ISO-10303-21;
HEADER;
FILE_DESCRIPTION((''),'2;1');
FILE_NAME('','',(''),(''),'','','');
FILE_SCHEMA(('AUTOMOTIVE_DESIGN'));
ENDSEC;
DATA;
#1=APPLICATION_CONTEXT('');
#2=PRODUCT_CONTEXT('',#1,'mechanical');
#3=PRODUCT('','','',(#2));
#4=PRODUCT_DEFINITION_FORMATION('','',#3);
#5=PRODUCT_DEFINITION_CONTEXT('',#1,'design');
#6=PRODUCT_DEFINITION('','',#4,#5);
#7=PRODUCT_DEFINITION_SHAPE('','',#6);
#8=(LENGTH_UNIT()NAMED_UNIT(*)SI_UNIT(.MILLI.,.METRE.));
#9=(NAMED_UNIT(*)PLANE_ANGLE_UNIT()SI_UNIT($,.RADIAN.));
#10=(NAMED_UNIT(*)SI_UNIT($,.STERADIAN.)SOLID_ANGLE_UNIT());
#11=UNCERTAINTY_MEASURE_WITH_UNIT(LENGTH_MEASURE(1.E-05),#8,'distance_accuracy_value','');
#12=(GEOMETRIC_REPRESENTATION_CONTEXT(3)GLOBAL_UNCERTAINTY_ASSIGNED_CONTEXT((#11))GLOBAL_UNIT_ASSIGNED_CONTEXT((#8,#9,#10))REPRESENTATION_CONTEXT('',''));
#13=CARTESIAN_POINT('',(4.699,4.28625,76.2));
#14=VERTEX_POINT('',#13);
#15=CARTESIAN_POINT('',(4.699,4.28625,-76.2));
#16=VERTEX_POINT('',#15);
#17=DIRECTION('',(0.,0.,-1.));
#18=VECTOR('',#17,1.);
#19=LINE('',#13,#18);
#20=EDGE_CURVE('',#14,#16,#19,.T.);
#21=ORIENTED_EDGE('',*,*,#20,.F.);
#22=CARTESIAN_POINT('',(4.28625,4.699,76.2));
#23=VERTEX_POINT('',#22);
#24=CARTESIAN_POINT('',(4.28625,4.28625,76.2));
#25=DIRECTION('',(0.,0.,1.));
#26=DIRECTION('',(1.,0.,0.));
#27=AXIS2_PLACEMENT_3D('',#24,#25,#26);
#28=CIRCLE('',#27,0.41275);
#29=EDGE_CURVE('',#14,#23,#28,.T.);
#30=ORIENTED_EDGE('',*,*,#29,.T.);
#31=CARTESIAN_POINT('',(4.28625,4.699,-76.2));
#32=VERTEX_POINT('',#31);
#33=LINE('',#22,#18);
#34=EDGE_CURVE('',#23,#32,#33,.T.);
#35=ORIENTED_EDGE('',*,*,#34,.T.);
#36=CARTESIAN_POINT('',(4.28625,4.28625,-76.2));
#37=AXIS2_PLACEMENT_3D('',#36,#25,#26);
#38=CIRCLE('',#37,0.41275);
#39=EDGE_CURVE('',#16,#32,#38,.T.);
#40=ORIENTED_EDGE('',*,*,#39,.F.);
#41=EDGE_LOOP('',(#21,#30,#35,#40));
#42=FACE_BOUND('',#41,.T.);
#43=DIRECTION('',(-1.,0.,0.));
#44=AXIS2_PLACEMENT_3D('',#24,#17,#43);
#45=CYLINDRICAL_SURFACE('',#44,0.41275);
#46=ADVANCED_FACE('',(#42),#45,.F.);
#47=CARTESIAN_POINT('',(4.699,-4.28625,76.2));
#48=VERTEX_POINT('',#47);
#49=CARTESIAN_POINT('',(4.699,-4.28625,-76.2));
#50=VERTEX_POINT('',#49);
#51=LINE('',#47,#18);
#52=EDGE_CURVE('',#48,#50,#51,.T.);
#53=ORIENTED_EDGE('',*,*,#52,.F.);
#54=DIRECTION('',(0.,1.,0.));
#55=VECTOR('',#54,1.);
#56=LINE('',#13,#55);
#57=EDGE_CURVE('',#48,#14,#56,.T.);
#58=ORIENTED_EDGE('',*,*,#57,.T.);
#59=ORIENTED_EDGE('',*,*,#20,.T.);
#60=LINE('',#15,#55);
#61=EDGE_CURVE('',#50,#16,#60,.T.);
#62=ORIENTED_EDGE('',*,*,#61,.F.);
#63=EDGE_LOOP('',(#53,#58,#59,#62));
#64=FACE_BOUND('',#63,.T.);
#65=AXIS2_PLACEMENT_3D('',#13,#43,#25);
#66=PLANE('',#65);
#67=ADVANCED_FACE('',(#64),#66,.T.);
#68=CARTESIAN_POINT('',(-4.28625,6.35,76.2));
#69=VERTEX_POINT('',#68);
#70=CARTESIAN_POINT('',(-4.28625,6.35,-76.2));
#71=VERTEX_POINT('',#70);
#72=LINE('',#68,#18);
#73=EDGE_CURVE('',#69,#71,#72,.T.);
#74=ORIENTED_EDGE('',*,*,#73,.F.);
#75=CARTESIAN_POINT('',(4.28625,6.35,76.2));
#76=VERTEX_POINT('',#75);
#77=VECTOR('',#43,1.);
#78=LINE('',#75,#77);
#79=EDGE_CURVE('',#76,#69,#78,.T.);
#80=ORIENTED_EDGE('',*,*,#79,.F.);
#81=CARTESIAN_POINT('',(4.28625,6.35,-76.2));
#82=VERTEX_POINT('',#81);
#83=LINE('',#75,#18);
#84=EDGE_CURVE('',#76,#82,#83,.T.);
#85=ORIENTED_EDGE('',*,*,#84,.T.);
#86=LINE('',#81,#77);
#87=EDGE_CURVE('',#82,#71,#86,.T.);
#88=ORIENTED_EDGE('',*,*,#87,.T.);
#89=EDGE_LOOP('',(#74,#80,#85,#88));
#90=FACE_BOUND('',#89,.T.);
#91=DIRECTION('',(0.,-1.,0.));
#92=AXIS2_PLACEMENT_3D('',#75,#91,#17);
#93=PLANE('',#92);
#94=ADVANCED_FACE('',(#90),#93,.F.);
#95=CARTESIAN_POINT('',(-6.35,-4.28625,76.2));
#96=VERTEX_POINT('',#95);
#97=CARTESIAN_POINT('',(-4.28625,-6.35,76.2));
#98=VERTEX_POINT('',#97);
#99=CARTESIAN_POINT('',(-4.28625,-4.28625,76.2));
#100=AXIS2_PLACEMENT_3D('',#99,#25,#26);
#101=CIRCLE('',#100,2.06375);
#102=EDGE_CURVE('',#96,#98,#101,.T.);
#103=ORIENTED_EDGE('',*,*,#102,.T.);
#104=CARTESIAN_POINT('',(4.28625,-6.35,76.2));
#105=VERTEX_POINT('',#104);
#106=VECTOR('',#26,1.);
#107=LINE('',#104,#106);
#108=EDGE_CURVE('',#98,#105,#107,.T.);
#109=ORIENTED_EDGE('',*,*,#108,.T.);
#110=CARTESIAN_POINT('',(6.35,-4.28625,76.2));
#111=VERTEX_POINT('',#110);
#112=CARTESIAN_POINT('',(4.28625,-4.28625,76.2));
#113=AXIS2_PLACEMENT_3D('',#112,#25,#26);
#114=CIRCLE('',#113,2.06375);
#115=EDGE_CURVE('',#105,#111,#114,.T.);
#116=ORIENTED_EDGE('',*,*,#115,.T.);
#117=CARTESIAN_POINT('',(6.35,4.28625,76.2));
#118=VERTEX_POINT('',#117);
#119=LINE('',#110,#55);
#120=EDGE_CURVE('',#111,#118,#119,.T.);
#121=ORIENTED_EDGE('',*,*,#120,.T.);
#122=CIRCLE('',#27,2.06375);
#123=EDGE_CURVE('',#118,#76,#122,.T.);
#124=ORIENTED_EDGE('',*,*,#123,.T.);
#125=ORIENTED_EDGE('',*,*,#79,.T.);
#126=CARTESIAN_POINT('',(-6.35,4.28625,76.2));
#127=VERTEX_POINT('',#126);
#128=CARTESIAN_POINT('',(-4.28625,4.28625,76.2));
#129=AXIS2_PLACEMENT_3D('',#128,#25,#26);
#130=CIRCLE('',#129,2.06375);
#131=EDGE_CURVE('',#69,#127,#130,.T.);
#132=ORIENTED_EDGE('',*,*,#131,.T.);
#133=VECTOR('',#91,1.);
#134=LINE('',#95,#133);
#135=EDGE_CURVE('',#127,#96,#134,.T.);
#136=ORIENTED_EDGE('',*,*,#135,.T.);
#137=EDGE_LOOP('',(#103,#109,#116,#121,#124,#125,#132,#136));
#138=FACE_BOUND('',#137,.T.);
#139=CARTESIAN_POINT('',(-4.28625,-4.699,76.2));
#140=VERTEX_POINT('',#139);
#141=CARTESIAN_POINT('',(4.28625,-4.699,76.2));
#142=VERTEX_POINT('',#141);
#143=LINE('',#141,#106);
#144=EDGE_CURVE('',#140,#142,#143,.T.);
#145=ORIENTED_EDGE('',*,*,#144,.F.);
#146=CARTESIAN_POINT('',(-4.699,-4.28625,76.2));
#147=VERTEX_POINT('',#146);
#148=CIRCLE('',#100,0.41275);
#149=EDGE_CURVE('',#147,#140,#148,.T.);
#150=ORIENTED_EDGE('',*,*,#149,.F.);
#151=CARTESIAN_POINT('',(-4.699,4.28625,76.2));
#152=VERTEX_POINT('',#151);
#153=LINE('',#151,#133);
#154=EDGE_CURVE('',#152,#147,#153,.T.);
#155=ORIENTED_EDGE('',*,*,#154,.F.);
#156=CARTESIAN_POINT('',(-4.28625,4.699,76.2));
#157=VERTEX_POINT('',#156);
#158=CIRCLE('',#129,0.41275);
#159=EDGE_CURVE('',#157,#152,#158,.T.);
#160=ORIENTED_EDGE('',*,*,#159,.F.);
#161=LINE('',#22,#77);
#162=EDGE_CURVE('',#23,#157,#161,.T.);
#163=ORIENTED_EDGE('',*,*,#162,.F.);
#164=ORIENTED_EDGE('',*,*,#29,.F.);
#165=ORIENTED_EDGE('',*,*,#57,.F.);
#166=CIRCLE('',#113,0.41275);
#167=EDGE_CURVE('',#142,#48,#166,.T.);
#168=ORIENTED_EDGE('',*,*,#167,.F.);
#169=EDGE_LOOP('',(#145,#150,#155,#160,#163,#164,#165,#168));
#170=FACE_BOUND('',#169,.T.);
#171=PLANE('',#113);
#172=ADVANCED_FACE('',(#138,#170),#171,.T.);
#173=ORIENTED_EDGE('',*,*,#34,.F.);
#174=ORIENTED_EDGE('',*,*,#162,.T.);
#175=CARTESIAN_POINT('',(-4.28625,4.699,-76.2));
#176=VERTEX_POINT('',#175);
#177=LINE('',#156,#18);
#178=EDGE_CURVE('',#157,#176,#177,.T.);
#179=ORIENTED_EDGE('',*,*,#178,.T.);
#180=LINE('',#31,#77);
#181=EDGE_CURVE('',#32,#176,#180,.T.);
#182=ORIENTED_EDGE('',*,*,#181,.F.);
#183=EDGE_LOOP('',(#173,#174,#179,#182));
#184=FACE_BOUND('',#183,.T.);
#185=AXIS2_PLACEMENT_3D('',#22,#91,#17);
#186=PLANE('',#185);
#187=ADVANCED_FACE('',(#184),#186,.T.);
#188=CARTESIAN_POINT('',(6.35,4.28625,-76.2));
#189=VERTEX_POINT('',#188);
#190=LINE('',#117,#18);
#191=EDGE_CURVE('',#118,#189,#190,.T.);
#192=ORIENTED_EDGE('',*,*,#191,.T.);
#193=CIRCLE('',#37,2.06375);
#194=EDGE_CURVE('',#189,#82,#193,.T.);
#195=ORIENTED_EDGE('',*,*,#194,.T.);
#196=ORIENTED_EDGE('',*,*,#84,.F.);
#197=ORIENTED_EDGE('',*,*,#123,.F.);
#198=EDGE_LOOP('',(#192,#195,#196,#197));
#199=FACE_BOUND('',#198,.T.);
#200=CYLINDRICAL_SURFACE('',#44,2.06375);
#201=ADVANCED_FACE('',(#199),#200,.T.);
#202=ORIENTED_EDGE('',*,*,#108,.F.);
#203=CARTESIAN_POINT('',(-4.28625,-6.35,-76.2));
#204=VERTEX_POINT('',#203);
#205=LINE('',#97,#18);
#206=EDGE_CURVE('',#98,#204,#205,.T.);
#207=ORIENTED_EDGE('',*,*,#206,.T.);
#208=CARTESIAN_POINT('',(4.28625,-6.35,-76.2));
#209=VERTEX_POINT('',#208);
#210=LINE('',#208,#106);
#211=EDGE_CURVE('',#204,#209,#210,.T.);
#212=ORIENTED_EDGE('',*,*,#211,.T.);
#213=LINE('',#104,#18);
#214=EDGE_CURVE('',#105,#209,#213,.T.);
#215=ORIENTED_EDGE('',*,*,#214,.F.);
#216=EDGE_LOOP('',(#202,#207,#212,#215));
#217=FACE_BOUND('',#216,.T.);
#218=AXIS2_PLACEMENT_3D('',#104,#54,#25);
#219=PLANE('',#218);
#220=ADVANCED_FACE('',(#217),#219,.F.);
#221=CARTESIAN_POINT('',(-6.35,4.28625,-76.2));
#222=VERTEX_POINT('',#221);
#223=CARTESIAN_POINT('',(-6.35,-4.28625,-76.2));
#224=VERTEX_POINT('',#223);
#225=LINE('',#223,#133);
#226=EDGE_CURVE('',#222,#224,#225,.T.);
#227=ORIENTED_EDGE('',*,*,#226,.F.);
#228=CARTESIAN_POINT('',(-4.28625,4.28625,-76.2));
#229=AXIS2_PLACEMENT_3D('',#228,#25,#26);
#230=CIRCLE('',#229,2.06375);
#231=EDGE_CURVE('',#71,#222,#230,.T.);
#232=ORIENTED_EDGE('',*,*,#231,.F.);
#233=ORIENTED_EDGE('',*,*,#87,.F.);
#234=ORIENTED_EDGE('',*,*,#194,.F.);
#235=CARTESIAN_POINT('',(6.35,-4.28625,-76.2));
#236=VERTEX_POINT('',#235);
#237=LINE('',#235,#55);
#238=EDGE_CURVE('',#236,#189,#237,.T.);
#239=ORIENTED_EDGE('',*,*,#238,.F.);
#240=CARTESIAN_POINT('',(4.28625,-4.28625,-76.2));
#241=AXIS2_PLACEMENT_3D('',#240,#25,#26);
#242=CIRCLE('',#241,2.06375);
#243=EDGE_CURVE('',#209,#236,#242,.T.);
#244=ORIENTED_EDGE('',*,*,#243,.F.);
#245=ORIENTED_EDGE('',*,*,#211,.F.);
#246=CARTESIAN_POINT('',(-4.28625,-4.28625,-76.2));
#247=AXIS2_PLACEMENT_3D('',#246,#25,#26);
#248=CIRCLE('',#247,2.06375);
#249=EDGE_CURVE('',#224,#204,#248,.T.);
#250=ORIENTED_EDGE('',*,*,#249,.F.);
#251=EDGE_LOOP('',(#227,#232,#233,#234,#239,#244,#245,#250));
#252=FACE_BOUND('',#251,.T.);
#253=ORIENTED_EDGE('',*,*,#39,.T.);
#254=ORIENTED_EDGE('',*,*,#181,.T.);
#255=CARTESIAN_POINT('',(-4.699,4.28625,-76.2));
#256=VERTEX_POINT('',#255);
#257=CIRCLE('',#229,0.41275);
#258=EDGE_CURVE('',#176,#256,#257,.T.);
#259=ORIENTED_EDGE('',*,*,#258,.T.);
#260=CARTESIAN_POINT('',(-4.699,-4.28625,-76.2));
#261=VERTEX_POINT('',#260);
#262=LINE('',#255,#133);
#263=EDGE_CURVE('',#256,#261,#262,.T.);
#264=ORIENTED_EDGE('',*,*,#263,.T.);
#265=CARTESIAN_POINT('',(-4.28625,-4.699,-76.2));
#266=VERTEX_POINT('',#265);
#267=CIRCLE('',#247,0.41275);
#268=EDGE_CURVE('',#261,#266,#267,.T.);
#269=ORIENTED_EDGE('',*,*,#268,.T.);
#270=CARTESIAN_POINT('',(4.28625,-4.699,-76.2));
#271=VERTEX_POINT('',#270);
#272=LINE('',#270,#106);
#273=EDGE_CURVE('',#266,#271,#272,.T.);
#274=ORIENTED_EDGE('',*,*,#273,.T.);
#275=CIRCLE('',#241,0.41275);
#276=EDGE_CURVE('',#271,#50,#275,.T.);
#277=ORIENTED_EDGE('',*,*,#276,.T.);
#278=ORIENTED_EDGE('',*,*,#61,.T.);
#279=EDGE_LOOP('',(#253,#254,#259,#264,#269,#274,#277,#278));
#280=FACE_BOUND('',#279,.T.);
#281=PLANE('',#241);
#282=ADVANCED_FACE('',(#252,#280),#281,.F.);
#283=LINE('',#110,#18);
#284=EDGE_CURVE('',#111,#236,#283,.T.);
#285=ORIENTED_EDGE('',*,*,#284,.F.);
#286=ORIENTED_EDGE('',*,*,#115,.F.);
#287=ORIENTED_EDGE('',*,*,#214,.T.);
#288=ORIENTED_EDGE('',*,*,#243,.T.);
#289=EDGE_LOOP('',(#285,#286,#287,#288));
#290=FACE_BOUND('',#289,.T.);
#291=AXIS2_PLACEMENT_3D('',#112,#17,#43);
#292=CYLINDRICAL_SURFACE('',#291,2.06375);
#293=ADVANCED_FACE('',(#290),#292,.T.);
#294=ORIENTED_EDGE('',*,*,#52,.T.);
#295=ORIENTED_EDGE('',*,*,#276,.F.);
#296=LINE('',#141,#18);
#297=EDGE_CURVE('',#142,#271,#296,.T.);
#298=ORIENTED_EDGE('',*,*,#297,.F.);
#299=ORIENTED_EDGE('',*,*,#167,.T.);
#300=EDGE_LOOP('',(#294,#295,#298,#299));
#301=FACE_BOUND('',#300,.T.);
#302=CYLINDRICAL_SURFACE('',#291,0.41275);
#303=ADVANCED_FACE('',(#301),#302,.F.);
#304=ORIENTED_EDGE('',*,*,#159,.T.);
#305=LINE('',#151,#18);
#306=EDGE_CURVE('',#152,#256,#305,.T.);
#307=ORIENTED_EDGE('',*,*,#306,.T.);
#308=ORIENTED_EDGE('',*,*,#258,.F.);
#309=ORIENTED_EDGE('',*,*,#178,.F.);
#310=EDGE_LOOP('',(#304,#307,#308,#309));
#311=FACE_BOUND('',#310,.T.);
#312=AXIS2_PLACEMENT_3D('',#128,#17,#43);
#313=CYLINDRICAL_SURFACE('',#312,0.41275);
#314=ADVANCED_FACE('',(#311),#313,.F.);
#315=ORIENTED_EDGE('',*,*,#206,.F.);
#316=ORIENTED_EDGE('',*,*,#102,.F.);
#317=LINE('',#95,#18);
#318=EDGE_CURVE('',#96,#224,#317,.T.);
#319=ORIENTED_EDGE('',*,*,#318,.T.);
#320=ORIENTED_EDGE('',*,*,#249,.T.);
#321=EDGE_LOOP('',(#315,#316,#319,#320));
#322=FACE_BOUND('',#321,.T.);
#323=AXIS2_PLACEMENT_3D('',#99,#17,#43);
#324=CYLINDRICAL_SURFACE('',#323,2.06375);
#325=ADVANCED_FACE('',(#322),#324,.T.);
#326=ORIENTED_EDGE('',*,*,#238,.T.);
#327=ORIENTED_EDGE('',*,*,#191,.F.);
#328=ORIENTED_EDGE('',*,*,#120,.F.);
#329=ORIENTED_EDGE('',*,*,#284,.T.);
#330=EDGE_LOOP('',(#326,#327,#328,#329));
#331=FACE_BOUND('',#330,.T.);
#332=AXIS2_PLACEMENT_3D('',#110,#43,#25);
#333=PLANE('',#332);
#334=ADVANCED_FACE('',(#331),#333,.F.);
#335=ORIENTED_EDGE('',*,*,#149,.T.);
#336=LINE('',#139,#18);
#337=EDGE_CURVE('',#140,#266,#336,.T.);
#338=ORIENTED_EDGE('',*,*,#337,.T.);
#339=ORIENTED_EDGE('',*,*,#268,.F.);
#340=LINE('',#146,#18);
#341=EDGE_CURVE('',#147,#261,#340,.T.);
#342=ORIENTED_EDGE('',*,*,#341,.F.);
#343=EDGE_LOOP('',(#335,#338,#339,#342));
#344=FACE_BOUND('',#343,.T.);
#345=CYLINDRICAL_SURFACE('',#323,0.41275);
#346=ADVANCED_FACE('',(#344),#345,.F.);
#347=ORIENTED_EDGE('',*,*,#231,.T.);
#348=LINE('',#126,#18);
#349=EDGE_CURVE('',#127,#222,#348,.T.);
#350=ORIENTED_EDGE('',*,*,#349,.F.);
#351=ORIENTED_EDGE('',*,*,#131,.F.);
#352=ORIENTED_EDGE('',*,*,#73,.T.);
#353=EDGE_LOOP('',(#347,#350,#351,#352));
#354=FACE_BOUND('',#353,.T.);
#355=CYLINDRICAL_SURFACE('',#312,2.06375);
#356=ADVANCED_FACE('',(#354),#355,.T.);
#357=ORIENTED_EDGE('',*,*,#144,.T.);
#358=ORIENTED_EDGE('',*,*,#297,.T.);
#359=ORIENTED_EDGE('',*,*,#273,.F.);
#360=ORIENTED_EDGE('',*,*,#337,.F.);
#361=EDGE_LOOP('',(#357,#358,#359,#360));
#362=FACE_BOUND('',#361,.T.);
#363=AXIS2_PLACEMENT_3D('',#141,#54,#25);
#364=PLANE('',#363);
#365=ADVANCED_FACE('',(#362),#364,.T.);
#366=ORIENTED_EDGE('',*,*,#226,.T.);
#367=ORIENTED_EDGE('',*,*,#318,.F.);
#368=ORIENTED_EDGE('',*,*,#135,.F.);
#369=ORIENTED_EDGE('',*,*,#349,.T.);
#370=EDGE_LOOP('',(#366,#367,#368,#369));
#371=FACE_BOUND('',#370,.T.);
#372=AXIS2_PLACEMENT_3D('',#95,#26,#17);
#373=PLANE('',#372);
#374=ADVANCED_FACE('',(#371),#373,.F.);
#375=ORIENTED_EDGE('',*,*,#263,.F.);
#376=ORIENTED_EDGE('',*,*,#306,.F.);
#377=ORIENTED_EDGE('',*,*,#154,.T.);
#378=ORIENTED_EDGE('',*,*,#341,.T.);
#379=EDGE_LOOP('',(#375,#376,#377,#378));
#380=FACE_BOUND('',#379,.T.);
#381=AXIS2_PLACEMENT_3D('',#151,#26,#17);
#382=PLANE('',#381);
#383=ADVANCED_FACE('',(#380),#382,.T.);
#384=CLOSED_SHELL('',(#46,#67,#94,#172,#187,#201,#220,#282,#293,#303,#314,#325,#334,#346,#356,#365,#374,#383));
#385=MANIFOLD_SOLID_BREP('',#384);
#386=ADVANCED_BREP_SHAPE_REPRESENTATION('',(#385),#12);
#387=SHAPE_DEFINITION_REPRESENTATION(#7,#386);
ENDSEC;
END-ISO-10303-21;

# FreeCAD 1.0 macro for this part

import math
import FreeCAD as App
import Part
import Sketcher
from FreeCAD import Vector
Q = App.Units.Quantity

doc = App.newDocument("Part")
params = doc.addObject("Spreadsheet::Sheet", "Params")
for row, (alias, value) in enumerate([
    ("pad1_length", "6 in"),
], start=1):
    params.set(f"A{row}", alias)
    params.set(f"B{row}", "=" + value)
    params.setAlias(f"B{row}", alias)

body = doc.addObject("PartDesign::Body", "Body")

# Sketch on XY plane
sketch1 = doc.addObject("Sketcher::SketchObject", "Sketch")
body.addObject(sketch1)
sketch1.AttachmentSupport = (doc.XY_Plane, [""])
sketch1.MapMode = "FlatFace"
sketch1.addGeometry(Part.LineSegment(Vector(6.35, -4.29, 0), Vector(6.35, 4.29, 0)), False)
sketch1.addGeometry(Part.ArcOfCircle(Part.Circle(Vector(4.29, 4.29, 0), Vector(0, 0, 1), 2.06), math.radians(0), math.radians(90)), False)
sketch1.addGeometry(Part.LineSegment(Vector(4.29, 6.35, 0), Vector(-4.29, 6.35, 0)), False)
sketch1.addGeometry(Part.ArcOfCircle(Part.Circle(Vector(-4.29, 4.29, 0), Vector(0, 0, 1), 2.06), math.radians(90), math.radians(180)), False)
sketch1.addGeometry(Part.LineSegment(Vector(-6.35, 4.29, 0), Vector(-6.35, -4.29, 0)), False)
sketch1.addGeometry(Part.ArcOfCircle(Part.Circle(Vector(-4.29, -4.29, 0), Vector(0, 0, 1), 2.06), math.radians(180), math.radians(270)), False)
sketch1.addGeometry(Part.LineSegment(Vector(-4.29, -6.35, 0), Vector(4.29, -6.35, 0)), False)
sketch1.addGeometry(Part.ArcOfCircle(Part.Circle(Vector(4.29, -4.29, 0), Vector(0, 0, 1), 2.06), math.radians(-90), math.radians(0)), False)
sketch1.addGeometry(Part.ArcOfCircle(Part.Circle(Vector(4.29, 4.29, 0), Vector(0, 0, 1), 0.41), math.radians(0), math.radians(90)), False)
sketch1.addGeometry(Part.LineSegment(Vector(4.7, 4.29, 0), Vector(4.7, -4.29, 0)), False)
sketch1.addGeometry(Part.ArcOfCircle(Part.Circle(Vector(4.29, -4.29, 0), Vector(0, 0, 1), 0.41), math.radians(-90), math.radians(0)), False)
sketch1.addGeometry(Part.LineSegment(Vector(4.29, -4.7, 0), Vector(-4.29, -4.7, 0)), False)
sketch1.addGeometry(Part.ArcOfCircle(Part.Circle(Vector(-4.29, -4.29, 0), Vector(0, 0, 1), 0.41), math.radians(180), math.radians(270)), False)
sketch1.addGeometry(Part.LineSegment(Vector(-4.7, -4.29, 0), Vector(-4.7, 4.29, 0)), False)
sketch1.addGeometry(Part.ArcOfCircle(Part.Circle(Vector(-4.29, 4.29, 0), Vector(0, 0, 1), 0.41), math.radians(90), math.radians(180)), False)
sketch1.addGeometry(Part.LineSegment(Vector(-4.29, 4.7, 0), Vector(4.29, 4.7, 0)), False)
sketch1.addConstraint(Sketcher.Constraint("Tangent", 0, 2, 1, 1))
sketch1.addConstraint(Sketcher.Constraint("Tangent", 1, 2, 2, 1))
sketch1.addConstraint(Sketcher.Constraint("Tangent", 2, 2, 3, 1))
sketch1.addConstraint(Sketcher.Constraint("Tangent", 3, 2, 4, 1))
sketch1.addConstraint(Sketcher.Constraint("Tangent", 4, 2, 5, 1))
sketch1.addConstraint(Sketcher.Constraint("Tangent", 5, 2, 6, 1))
sketch1.addConstraint(Sketcher.Constraint("Tangent", 6, 2, 7, 1))
sketch1.addConstraint(Sketcher.Constraint("Tangent", 7, 2, 0, 1))
sketch1.addConstraint(Sketcher.Constraint("Tangent", 8, 1, 9, 1))
sketch1.addConstraint(Sketcher.Constraint("Tangent", 9, 2, 10, 2))
sketch1.addConstraint(Sketcher.Constraint("Tangent", 10, 1, 11, 1))
sketch1.addConstraint(Sketcher.Constraint("Tangent", 11, 2, 12, 2))
sketch1.addConstraint(Sketcher.Constraint("Tangent", 12, 1, 13, 1))
sketch1.addConstraint(Sketcher.Constraint("Tangent", 13, 2, 14, 2))
sketch1.addConstraint(Sketcher.Constraint("Tangent", 14, 1, 15, 1))
sketch1.addConstraint(Sketcher.Constraint("Tangent", 15, 2, 8, 2))
sketch1.addConstraint(Sketcher.Constraint("Vertical", 0))
sketch1.addConstraint(Sketcher.Constraint("Horizontal", 2))
sketch1.addConstraint(Sketcher.Constraint("Vertical", 4))
sketch1.addConstraint(Sketcher.Constraint("Horizontal", 6))
sketch1.addConstraint(Sketcher.Constraint("Vertical", 9))
sketch1.addConstraint(Sketcher.Constraint("Horizontal", 11))
sketch1.addConstraint(Sketcher.Constraint("Vertical", 13))
sketch1.addConstraint(Sketcher.Constraint("Horizontal", 15))
sketch1.addConstraint(Sketcher.Constraint("Coincident", 8, 3, 1, 3))
sketch1.addConstraint(Sketcher.Constraint("Coincident", 10, 3, 7, 3))
sketch1.addConstraint(Sketcher.Constraint("Coincident", 12, 3, 5, 3))
sketch1.addConstraint(Sketcher.Constraint("Equal", 1, 3))
sketch1.addConstraint(Sketcher.Constraint("Equal", 3, 5))
sketch1.addConstraint(Sketcher.Constraint("Equal", 5, 7))
sketch1.addConstraint(Sketcher.Constraint("Equal", 12, 14))
sketch1.addConstraint(Sketcher.Constraint("Symmetric", 1, 3, 5, 3, -1, 1))
sketch1.addConstraint(Sketcher.Constraint("Equal", 15, 0))
sketch1.addConstraint(Sketcher.Constraint("DistanceX", -1, 1, 0, 2, Q("0.25 in")))
sketch1.addConstraint(Sketcher.Constraint("DistanceX", 2, 2, 2, 1, Q("0.3375 in")))
sketch1.addConstraint(Sketcher.Constraint("DistanceX", -1, 1, 8, 1, Q("0.185 in")))
pad1 = doc.addObject("PartDesign::Pad", "Pad")
body.addObject(pad1)
pad1.Profile = sketch1
pad1.setExpression("Length", "Params.pad1_length")
pad1.Midplane = True

doc.recompute()
